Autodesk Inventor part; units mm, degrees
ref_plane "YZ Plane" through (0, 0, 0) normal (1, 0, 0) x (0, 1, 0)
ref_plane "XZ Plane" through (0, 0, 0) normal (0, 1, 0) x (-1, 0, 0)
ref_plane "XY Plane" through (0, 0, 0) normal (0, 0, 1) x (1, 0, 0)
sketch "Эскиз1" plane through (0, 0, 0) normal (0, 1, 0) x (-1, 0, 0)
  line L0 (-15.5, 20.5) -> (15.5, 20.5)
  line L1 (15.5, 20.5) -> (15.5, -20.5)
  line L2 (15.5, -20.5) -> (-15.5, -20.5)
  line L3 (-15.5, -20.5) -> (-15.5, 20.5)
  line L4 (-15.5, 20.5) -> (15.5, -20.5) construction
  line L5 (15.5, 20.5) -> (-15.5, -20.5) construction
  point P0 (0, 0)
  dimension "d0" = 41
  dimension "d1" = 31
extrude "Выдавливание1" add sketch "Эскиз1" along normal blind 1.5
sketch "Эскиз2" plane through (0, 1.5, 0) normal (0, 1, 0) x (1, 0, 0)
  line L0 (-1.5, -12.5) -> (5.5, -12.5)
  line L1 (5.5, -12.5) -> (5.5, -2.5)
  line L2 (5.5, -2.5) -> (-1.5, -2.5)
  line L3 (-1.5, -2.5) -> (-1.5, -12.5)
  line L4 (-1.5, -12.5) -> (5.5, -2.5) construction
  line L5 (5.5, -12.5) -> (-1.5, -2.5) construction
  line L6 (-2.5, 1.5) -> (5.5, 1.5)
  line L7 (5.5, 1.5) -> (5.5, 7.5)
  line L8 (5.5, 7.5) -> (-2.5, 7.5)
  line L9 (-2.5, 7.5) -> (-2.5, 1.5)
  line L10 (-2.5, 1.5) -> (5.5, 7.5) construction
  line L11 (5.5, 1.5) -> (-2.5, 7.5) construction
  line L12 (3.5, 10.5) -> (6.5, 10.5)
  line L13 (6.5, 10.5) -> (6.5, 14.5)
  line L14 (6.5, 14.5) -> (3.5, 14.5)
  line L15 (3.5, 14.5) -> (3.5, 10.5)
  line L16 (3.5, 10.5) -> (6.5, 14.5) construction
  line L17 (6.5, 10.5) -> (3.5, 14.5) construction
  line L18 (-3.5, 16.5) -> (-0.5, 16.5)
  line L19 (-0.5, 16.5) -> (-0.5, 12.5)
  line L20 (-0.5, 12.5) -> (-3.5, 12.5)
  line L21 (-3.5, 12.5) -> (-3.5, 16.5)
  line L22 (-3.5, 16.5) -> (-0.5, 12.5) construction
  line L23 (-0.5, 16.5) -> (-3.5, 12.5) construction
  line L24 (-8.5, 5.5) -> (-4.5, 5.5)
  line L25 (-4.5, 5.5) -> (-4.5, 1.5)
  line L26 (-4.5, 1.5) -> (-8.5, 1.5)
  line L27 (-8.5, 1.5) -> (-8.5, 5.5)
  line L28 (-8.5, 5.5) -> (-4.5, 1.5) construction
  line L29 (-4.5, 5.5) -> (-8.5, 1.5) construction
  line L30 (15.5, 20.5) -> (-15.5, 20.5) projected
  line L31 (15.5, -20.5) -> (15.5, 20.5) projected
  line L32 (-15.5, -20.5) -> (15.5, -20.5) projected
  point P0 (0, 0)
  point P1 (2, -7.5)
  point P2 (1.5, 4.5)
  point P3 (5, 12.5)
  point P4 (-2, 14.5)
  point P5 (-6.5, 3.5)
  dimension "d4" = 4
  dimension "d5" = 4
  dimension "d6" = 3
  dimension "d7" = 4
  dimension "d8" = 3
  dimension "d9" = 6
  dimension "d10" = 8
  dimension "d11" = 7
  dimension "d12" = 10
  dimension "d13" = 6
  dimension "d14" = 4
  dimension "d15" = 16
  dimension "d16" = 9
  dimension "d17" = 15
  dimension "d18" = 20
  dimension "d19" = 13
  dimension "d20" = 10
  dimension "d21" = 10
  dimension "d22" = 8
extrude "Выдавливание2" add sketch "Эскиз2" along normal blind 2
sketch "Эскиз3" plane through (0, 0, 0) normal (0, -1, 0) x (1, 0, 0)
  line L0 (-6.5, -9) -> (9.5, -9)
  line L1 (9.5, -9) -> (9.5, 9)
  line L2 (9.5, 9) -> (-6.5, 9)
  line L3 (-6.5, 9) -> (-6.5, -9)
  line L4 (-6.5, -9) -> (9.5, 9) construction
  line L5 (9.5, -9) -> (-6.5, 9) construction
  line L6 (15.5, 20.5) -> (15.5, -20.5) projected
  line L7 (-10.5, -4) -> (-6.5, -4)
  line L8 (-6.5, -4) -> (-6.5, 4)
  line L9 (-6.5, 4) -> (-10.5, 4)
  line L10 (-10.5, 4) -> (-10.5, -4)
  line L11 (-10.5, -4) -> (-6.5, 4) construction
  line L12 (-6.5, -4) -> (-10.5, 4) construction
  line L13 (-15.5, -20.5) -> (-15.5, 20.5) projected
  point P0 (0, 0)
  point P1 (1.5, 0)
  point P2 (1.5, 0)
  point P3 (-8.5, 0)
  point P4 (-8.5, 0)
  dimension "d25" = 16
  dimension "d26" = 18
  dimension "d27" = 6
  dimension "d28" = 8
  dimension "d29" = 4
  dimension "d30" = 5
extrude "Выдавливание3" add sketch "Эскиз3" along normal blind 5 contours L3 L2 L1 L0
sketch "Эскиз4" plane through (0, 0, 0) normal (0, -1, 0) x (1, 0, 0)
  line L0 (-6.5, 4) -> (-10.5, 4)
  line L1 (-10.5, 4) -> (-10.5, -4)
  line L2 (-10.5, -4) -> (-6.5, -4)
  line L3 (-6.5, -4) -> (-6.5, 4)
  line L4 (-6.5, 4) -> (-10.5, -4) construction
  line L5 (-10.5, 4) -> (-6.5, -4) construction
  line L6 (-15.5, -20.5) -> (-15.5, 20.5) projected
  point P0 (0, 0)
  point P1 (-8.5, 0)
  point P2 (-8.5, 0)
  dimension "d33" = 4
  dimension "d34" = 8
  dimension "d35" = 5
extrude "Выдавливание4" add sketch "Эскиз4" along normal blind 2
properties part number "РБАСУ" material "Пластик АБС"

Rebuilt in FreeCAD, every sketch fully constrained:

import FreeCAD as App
import Part
import Sketcher
from FreeCAD import Vector


def add_polygon(sketch, points):
    """Adds a closed chain of lines whose ends are joined by coincident constraints."""
    first, n = sketch.GeometryCount, len(points)
    for a, b in zip(points, points[1:] + points[:1]):
        sketch.addGeometry(Part.LineSegment(App.Vector(*a, 0), App.Vector(*b, 0)), False)
    for i in range(n):
        sketch.addConstraint(Sketcher.Constraint("Coincident", first + i, 2, first + (i + 1) % n, 1))

doc = App.newDocument("Part")
params = doc.addObject("Spreadsheet::Sheet", "Params")
for row, (alias, value) in enumerate([
    ("sketch1_width", "31 mm"),
    ("sketch1_height", "41 mm"),
    ("pad1_length", "1.5 mm"),
    ("sketch2_width", "7 mm"),
    ("sketch2_width2", "8 mm"),
    ("sketch2_width3", "3 mm"),
    ("sketch2_width4", "4 mm"),
    ("sketch2_height", "10 mm"),
    ("pad2_length", "2 mm"),
    ("sketch3_width", "16 mm"),
    ("sketch3_height", "18 mm"),
    ("pad3_length", "5 mm"),
    ("sketch4_width", "4 mm"),
    ("sketch4_height", "8 mm"),
    ("pad4_length", "2 mm"),
], start=1):
    params.set(f"A{row}", alias)
    params.set(f"B{row}", "=" + value)
    params.setAlias(f"B{row}", alias)

body = doc.addObject("PartDesign::Body", "Body")

sketch1 = doc.addObject("Sketcher::SketchObject", "Sketch")
body.addObject(sketch1)
sketch1.AttachmentSupport = (doc.XZ_Plane, [""])
sketch1.MapMode = "FlatFace"
add_polygon(sketch1, [(-16, 20), (16, 20), (16, -20), (-16, -20)])
sketch1.addConstraint(Sketcher.Constraint("Horizontal", 0))
sketch1.addConstraint(Sketcher.Constraint("Vertical", 1))
sketch1.addConstraint(Sketcher.Constraint("Horizontal", 2))
sketch1.addConstraint(Sketcher.Constraint("Vertical", 3))
sketch1.addConstraint(Sketcher.Constraint("Symmetric", 0, 2, 2, 2, -1, 1))
sketch1.addConstraint(Sketcher.Constraint("DistanceX", 0, 1, 0, 2, 31.0))
sketch1.addConstraint(Sketcher.Constraint("DistanceY", 1, 2, 1, 1, 41.0))
sketch1.setExpression("Constraints[9]", "Params.sketch1_width")
sketch1.setExpression("Constraints[10]", "Params.sketch1_height")
pad1 = doc.addObject("PartDesign::Pad", "Pad")
body.addObject(pad1)
pad1.Profile = sketch1
pad1.setExpression("Length", "Params.pad1_length")
pad1.Reversed = True

sketch2 = doc.addObject("Sketcher::SketchObject", "Sketch001")
body.addObject(sketch2)
sketch2.AttachmentSupport = (doc.XZ_Plane, [""])
sketch2.MapMode = "FlatFace"
sketch2.AttachmentOffset = App.Placement(Vector(0, 0, -1.5), App.Rotation())
add_polygon(sketch2, [(-1.5, 2.5), (-1.5, 12.5), (5.5, 12.5), (5.5, 2.5)])
add_polygon(sketch2, [(-2.5, -7.5), (-2.5, -1.5), (5.5, -1.5), (5.5, -7.5)])
add_polygon(sketch2, [(3.5, -14.5), (3.5, -10.5), (6.5, -10.5), (6.5, -14.5)])
add_polygon(sketch2, [(-0.5, -16.5), (-3.5, -16.5), (-3.5, -12.5), (-0.5, -12.5)])
add_polygon(sketch2, [(-4.5, -5.5), (-8.5, -5.5), (-8.5, -1.5), (-4.5, -1.5)])
sketch2.addConstraint(Sketcher.Constraint("Vertical", 0))
sketch2.addConstraint(Sketcher.Constraint("Horizontal", 1))
sketch2.addConstraint(Sketcher.Constraint("Vertical", 2))
sketch2.addConstraint(Sketcher.Constraint("Horizontal", 3))
sketch2.addConstraint(Sketcher.Constraint("Vertical", 4))
sketch2.addConstraint(Sketcher.Constraint("Horizontal", 5))
sketch2.addConstraint(Sketcher.Constraint("Vertical", 6))
sketch2.addConstraint(Sketcher.Constraint("Horizontal", 7))
sketch2.addConstraint(Sketcher.Constraint("Vertical", 8))
sketch2.addConstraint(Sketcher.Constraint("Horizontal", 9))
sketch2.addConstraint(Sketcher.Constraint("Vertical", 10))
sketch2.addConstraint(Sketcher.Constraint("Horizontal", 11))
sketch2.addConstraint(Sketcher.Constraint("Horizontal", 12))
sketch2.addConstraint(Sketcher.Constraint("Vertical", 13))
sketch2.addConstraint(Sketcher.Constraint("Horizontal", 14))
sketch2.addConstraint(Sketcher.Constraint("Vertical", 15))
sketch2.addConstraint(Sketcher.Constraint("Horizontal", 16))
sketch2.addConstraint(Sketcher.Constraint("Vertical", 17))
sketch2.addConstraint(Sketcher.Constraint("Horizontal", 18))
sketch2.addConstraint(Sketcher.Constraint("Vertical", 19))
sketch2.addConstraint(Sketcher.Constraint("Horizontal", 5, 2, 17, 2))
sketch2.addConstraint(Sketcher.Constraint("Vertical", 2, 2, 5, 2))
sketch2.addConstraint(Sketcher.Constraint("Equal", 11, 12))
sketch2.addConstraint(Sketcher.Constraint("Equal", 18, 8))
sketch2.addConstraint(Sketcher.Constraint("Equal", 10, 13))
sketch2.addConstraint(Sketcher.Constraint("Equal", 15, 17))
sketch2.addConstraint(Sketcher.Constraint("DistanceX", 1, 1, 1, 2, 7.0))
sketch2.addConstraint(Sketcher.Constraint("DistanceX", 5, 1, 5, 2, 8.0))
sketch2.addConstraint(Sketcher.Constraint("DistanceX", 9, 1, 9, 2, 3.0))
sketch2.addConstraint(Sketcher.Constraint("DistanceX", 16, 2, 16, 1, 4.0))
sketch2.addConstraint(Sketcher.Constraint("DistanceY", 0, 1, 0, 2, 10.0))
sketch2.addConstraint(Sketcher.Constraint("DistanceY", 4, 1, 4, 2, 6.0))
sketch2.addConstraint(Sketcher.Constraint("DistanceY", 4, 2, 3, 2, 4.0))
sketch2.addConstraint(Sketcher.Constraint("DistanceY", 8, 2, 6, 2, 3.0))
sketch2.addConstraint(Sketcher.Constraint("DistanceX", 7, 2, 8, 2, 6.0))
sketch2.addConstraint(Sketcher.Constraint("DistanceX", 12, 2, 11, 2, 7.0))
sketch2.addConstraint(Sketcher.Constraint("DistanceY", 12, 2, 7, 2, 9.0))
sketch2.addConstraint(Sketcher.Constraint("DistanceX", 16, 2, 7, 2, 6.0))
sketch2.addConstraint(Sketcher.Constraint("DistanceX", 0, 2, -1, 1, 1.5))
sketch2.addConstraint(Sketcher.Constraint("DistanceY", -1, 1, 0, 2, 12.5))
sketch2.setExpression("Constraints[46]", "Params.sketch2_width")
sketch2.setExpression("Constraints[47]", "Params.sketch2_width2")
sketch2.setExpression("Constraints[48]", "Params.sketch2_width3")
sketch2.setExpression("Constraints[49]", "Params.sketch2_width4")
sketch2.setExpression("Constraints[50]", "Params.sketch2_height")
pad2 = doc.addObject("PartDesign::Pad", "Pad001")
body.addObject(pad2)
pad2.Profile = sketch2
pad2.setExpression("Length", "Params.pad2_length")
pad2.Reversed = True

sketch3 = doc.addObject("Sketcher::SketchObject", "Sketch002")
body.addObject(sketch3)
sketch3.AttachmentSupport = (doc.XZ_Plane, [""])
sketch3.MapMode = "FlatFace"
add_polygon(sketch3, [(-6, 9), (-6, -9), (10, -9), (10, 9)])
sketch3.addConstraint(Sketcher.Constraint("Vertical", 0))
sketch3.addConstraint(Sketcher.Constraint("Horizontal", 1))
sketch3.addConstraint(Sketcher.Constraint("Vertical", 2))
sketch3.addConstraint(Sketcher.Constraint("Horizontal", 3))
sketch3.addConstraint(Sketcher.Constraint("DistanceX", 1, 1, 1, 2, 16.0))
sketch3.addConstraint(Sketcher.Constraint("DistanceY", 0, 2, 0, 1, 18.0))
sketch3.addConstraint(Sketcher.Constraint("DistanceY", 0, 2, -1, 1, 9.0))
sketch3.addConstraint(Sketcher.Constraint("DistanceX", 0, 2, -1, 1, 6.5))
sketch3.setExpression("Constraints[8]", "Params.sketch3_width")
sketch3.setExpression("Constraints[9]", "Params.sketch3_height")
pad3 = doc.addObject("PartDesign::Pad", "Pad002")
body.addObject(pad3)
pad3.Profile = sketch3
pad3.setExpression("Length", "Params.pad3_length")

sketch4 = doc.addObject("Sketcher::SketchObject", "Sketch003")
body.addObject(sketch4)
sketch4.AttachmentSupport = (doc.XZ_Plane, [""])
sketch4.MapMode = "FlatFace"
add_polygon(sketch4, [(-6.5, -4), (-6.5, 4), (-10.5, 4), (-10.5, -4)])
sketch4.addConstraint(Sketcher.Constraint("Vertical", 0))
sketch4.addConstraint(Sketcher.Constraint("Horizontal", 1))
sketch4.addConstraint(Sketcher.Constraint("Vertical", 2))
sketch4.addConstraint(Sketcher.Constraint("Horizontal", 3))
sketch4.addConstraint(Sketcher.Constraint("DistanceX", 1, 2, 1, 1, 4.0))
sketch4.addConstraint(Sketcher.Constraint("DistanceY", 0, 1, 0, 2, 8.0))
sketch4.addConstraint(Sketcher.Constraint("DistanceY", -1, 1, 0, 2, 4.0))
sketch4.addConstraint(Sketcher.Constraint("DistanceX", 0, 2, -1, 1, 6.5))
sketch4.setExpression("Constraints[8]", "Params.sketch4_width")
sketch4.setExpression("Constraints[9]", "Params.sketch4_height")
pad4 = doc.addObject("PartDesign::Pad", "Pad003")
body.addObject(pad4)
pad4.Profile = sketch4
pad4.setExpression("Length", "Params.pad4_length")

doc.recompute()
